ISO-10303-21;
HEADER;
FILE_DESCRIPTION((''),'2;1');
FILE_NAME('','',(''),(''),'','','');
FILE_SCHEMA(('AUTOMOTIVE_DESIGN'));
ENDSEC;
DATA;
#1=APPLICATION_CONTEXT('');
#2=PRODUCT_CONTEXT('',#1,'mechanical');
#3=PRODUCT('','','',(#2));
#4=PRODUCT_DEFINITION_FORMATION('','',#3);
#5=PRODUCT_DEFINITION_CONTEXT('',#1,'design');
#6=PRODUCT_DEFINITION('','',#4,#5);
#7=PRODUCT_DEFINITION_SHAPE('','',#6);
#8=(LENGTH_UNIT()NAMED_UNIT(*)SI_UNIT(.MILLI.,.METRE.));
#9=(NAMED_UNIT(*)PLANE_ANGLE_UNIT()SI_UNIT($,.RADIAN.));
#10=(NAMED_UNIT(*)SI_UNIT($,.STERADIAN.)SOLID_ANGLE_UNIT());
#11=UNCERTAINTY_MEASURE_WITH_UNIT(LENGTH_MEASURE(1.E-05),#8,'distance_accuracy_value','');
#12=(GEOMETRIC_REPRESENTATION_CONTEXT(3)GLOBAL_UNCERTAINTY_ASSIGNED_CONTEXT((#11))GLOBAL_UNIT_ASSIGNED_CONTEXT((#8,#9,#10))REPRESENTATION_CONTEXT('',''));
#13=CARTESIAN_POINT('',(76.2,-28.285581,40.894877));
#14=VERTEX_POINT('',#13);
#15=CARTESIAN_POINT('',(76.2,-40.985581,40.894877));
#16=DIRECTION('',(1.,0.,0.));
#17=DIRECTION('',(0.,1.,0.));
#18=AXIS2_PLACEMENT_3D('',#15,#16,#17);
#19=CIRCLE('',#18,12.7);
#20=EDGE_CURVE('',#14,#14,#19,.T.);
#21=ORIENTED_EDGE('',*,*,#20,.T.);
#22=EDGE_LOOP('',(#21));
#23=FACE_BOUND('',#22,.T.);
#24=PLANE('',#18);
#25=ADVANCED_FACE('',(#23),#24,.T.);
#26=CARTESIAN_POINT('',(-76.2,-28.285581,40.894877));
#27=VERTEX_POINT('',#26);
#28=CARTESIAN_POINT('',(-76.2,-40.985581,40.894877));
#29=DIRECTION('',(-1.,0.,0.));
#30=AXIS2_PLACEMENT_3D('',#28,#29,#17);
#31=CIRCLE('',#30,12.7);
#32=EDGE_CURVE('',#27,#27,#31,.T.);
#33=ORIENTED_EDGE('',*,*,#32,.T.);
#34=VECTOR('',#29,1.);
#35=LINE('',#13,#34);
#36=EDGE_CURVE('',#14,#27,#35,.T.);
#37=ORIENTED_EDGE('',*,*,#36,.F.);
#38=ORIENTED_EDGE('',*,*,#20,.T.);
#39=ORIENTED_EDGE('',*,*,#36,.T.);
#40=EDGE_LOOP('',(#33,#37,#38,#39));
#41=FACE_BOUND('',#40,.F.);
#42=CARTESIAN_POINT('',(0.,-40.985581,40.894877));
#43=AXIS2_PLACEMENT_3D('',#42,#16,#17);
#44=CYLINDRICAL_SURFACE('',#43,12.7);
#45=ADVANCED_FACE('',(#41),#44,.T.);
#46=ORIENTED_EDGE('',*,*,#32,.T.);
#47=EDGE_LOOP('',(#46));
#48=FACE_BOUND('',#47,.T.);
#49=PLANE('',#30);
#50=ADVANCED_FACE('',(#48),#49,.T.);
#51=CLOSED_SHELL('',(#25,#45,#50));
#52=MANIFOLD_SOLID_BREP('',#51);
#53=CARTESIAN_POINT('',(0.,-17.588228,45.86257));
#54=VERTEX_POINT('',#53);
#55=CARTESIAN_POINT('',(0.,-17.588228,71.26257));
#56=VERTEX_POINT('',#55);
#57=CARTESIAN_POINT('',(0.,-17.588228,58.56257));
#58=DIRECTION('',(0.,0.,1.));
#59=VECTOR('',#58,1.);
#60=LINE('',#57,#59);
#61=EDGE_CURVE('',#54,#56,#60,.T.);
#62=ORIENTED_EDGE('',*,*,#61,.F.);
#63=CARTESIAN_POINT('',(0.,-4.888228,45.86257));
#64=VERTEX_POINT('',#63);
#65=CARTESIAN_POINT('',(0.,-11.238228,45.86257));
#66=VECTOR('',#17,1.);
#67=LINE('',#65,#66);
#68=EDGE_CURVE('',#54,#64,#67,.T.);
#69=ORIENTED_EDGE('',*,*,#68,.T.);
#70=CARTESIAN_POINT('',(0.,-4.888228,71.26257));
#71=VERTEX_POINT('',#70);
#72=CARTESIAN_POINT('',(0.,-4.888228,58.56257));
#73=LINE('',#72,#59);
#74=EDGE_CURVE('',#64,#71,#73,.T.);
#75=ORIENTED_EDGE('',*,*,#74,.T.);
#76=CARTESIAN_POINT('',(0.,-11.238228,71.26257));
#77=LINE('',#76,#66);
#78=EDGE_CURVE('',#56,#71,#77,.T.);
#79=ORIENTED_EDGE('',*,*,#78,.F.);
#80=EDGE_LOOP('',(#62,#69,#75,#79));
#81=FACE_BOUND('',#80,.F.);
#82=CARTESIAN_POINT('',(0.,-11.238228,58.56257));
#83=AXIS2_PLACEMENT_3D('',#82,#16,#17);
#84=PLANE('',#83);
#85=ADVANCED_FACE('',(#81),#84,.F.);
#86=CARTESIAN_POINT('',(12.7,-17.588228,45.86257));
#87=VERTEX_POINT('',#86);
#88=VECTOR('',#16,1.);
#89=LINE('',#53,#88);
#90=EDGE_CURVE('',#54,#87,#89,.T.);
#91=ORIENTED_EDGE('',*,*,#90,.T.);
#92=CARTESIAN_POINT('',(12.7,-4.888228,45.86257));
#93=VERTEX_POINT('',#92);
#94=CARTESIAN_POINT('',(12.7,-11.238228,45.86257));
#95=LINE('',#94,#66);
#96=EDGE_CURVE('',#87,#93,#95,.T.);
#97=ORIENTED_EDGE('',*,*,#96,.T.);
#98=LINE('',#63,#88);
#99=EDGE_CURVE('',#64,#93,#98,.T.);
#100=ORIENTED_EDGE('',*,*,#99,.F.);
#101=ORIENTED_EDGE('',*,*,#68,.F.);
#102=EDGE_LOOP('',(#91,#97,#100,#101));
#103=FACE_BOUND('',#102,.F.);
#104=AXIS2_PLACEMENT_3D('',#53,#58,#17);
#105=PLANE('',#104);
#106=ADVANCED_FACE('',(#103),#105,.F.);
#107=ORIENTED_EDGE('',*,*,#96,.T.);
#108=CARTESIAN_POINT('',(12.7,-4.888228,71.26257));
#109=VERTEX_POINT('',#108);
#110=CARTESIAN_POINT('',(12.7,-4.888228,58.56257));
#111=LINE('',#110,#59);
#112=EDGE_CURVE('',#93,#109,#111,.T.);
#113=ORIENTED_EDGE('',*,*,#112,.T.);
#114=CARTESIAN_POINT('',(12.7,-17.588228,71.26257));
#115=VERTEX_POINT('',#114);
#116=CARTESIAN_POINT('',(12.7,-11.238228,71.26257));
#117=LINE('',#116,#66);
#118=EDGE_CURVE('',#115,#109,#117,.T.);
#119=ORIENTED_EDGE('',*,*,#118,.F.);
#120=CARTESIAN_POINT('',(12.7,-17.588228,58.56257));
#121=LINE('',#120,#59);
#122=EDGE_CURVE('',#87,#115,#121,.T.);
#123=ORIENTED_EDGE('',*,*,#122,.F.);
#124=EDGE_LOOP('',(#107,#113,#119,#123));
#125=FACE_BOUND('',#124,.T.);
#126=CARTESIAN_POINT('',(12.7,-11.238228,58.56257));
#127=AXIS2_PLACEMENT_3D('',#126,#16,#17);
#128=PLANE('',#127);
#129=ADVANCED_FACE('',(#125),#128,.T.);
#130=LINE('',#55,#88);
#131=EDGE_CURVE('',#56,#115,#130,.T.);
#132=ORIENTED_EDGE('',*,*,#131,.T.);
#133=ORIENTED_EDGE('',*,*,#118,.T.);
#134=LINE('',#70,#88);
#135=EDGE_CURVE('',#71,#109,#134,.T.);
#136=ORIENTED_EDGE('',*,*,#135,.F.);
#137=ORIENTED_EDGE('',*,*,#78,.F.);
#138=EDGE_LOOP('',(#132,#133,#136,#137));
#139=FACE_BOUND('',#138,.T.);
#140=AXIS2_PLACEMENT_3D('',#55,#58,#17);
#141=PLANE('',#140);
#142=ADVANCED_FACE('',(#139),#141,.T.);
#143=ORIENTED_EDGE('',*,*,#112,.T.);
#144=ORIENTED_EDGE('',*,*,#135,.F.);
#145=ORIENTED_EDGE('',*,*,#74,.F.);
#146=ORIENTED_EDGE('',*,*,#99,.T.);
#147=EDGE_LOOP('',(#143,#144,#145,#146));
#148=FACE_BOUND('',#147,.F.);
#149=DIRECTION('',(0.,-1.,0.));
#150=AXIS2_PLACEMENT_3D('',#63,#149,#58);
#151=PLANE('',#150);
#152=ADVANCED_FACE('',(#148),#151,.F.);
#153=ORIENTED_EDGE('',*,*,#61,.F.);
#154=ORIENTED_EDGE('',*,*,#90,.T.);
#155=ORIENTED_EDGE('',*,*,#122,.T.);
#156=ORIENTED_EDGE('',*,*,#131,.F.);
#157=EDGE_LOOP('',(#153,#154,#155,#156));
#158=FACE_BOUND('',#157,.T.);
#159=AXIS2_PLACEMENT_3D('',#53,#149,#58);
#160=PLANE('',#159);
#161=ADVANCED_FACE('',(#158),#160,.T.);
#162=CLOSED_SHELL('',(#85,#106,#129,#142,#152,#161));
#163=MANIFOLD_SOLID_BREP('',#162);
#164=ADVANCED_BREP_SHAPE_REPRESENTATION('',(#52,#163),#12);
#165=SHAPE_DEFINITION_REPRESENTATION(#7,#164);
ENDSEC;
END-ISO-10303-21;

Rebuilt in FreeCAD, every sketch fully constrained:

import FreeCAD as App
import Part
import Sketcher

V = App.Vector
Q = App.Units.Quantity

doc = App.newDocument("Part")
body = doc.addObject("PartDesign::Body", "Body")

# Sketch on YZ plane
sketch1 = body.newObject("Sketcher::SketchObject", "Sketch")
sketch1.AttachmentSupport = (doc.getObject("YZ_Plane"), [""])
sketch1.MapMode = "FlatFace"
sketch1.addGeometry(Part.Circle(V(-40.985581, 40.894877, 0), V(0, 0, 1), 12.7), False)
sketch1.addConstraint([
    Sketcher.Constraint("Diameter", 0, Q("1 in")),
    Sketcher.Constraint("DistanceX", 0, 3, -1, 1, Q("40.985581 mm")),
    Sketcher.Constraint("DistanceY", -1, 1, 0, 3, Q("40.894877 mm")),
])
pad1 = body.newObject("PartDesign::Pad", "Pad")
pad1.Profile = sketch1
pad1.Length = Q("3 in")

# Sketch on YZ plane
sketch2 = body.newObject("Sketcher::SketchObject", "Sketch001")
sketch2.AttachmentSupport = (doc.getObject("YZ_Plane"), [""])
sketch2.MapMode = "FlatFace"
sketch2.addGeometry(Part.Circle(V(-40.985581, 40.894877, 0), V(0, 0, 1), 12.7), False)
sketch2.addConstraint([
    Sketcher.Constraint("Diameter", 0, Q("1 in")),
    Sketcher.Constraint("DistanceX", 0, 3, -1, 1, Q("40.985581 mm")),
    Sketcher.Constraint("DistanceY", -1, 1, 0, 3, Q("40.894877 mm")),
])
pad2 = body.newObject("PartDesign::Pad", "Pad001")
pad2.Profile = sketch2
pad2.Length = Q("3 in")
pad2.Reversed = True
body2 = doc.addObject("PartDesign::Body", "Body001")

# Sketch on YZ plane
sketch3 = body2.newObject("Sketcher::SketchObject", "Sketch002")
sketch3.AttachmentSupport = (doc.getObject("YZ_Plane001"), [""])
sketch3.MapMode = "FlatFace"
sketch3.addGeometry([
    Part.LineSegment(V(-17.588228, 71.26257, 0), V(-17.588228, 45.86257, 0)),
    Part.LineSegment(V(-17.588228, 45.86257, 0), V(-4.888228, 45.86257, 0)),
    Part.LineSegment(V(-4.888228, 45.86257, 0), V(-4.888228, 71.26257, 0)),
    Part.LineSegment(V(-4.888228, 71.26257, 0), V(-17.588228, 71.26257, 0)),
], False)
sketch3.addConstraint([
    Sketcher.Constraint("Coincident", 0, 2, 1, 1),
    Sketcher.Constraint("Coincident", 1, 2, 2, 1),
    Sketcher.Constraint("Coincident", 2, 2, 3, 1),
    Sketcher.Constraint("Coincident", 3, 2, 0, 1),
    Sketcher.Constraint("Vertical", 0),
    Sketcher.Constraint("Horizontal", 1),
    Sketcher.Constraint("Vertical", 2),
    Sketcher.Constraint("Horizontal", 3),
    Sketcher.Constraint("DistanceY", 0, 2, 0, 1, Q("1 in")),
    Sketcher.Constraint("DistanceX", 1, 1, 1, 2, Q("0.5 in")),
    Sketcher.Constraint("DistanceX", 0, 2, -1, 1, Q("17.588228 mm")),
    Sketcher.Constraint("DistanceY", -1, 1, 0, 2, Q("45.86257 mm")),
])
pad3 = body2.newObject("PartDesign::Pad", "Pad002")
pad3.Profile = sketch3
pad3.Length = Q("0.5 in")

doc.recompute()
